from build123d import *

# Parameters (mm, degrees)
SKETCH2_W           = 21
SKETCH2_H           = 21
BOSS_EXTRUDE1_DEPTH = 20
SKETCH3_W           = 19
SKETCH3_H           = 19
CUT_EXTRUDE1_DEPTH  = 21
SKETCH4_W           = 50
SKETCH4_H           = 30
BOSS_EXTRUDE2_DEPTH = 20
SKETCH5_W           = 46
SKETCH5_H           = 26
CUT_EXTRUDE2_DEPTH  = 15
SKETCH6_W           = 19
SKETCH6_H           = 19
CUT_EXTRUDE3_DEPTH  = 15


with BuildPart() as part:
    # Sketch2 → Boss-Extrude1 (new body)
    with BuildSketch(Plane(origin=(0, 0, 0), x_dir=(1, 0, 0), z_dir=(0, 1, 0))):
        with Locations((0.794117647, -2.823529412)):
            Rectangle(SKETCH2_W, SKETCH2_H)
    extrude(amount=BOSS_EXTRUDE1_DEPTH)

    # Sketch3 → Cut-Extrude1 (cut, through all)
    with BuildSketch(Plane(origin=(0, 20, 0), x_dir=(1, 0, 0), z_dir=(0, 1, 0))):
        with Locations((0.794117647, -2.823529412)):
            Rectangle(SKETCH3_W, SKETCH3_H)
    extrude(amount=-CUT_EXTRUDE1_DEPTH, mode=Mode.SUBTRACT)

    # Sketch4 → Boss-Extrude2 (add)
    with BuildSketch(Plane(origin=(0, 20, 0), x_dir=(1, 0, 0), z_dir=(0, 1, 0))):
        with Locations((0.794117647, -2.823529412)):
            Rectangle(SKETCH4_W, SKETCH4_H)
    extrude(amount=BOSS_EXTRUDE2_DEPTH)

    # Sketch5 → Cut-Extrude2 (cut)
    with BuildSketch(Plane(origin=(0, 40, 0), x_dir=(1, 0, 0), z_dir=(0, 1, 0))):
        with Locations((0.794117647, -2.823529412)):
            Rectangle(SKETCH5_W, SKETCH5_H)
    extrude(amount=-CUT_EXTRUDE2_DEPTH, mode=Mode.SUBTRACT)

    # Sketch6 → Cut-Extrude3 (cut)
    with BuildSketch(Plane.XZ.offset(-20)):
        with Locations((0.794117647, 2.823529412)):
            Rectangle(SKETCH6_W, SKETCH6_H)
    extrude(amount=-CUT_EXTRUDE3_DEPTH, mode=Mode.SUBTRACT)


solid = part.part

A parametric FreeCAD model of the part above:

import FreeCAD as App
import Part
import Sketcher
Q = App.Units.Quantity


def add_polygon(sketch, points):
    """Adds a closed chain of lines whose ends are joined by coincident constraints."""
    first, n = sketch.GeometryCount, len(points)
    for a, b in zip(points, points[1:] + points[:1]):
        sketch.addGeometry(Part.LineSegment(App.Vector(*a, 0), App.Vector(*b, 0)), False)
    for i in range(n):
        sketch.addConstraint(Sketcher.Constraint("Coincident", first + i, 2, first + (i + 1) % n, 1))

doc = App.newDocument("Part")
body = doc.addObject("PartDesign::Body", "Body")

sketch1 = body.newObject("Sketcher::SketchObject", "Sketch")
sketch1.AttachmentSupport = (doc.getObject("XZ_Plane"), [""])
sketch1.MapMode = "FlatFace"
add_polygon(sketch1, [(-10, -8), (-10, 13), (11, 13), (11, -8)])
sketch1.addConstraint([
    Sketcher.Constraint("Vertical", 0),
    Sketcher.Constraint("Horizontal", 1),
    Sketcher.Constraint("Vertical", 2),
    Sketcher.Constraint("Horizontal", 3),
    Sketcher.Constraint("Equal", 3, 0),
    Sketcher.Constraint("DistanceX", 1, 1, 1, 2, Q("21 mm")),
    Sketcher.Constraint("DistanceY", -1, 1, 0, 2, Q("13.323529 mm")),
    Sketcher.Constraint("DistanceX", 0, 2, -1, 1, Q("9.705882 mm")),
])
pad1 = body.newObject("PartDesign::Pad", "Pad")
pad1.Profile = sketch1
pad1.Length = 20
pad1.Reversed = True

sketch2 = body.newObject("Sketcher::SketchObject", "Sketch001")
sketch2.AttachmentSupport = (doc.getObject("XZ_Plane"), [""])
sketch2.MapMode = "FlatFace"
sketch2.AttachmentOffset = App.Placement(App.Vector(0, 0, -20), App.Rotation())
add_polygon(sketch2, [(-9, -7), (-9, 12), (10, 12), (10, -7)])
sketch2.addConstraint([
    Sketcher.Constraint("Vertical", 0),
    Sketcher.Constraint("Horizontal", 1),
    Sketcher.Constraint("Vertical", 2),
    Sketcher.Constraint("Horizontal", 3),
    Sketcher.Constraint("Equal", 3, 0),
    Sketcher.Constraint("DistanceX", 1, 1, 1, 2, Q("19 mm")),
    Sketcher.Constraint("DistanceY", -1, 1, 0, 2, Q("12.323529 mm")),
    Sketcher.Constraint("DistanceX", 0, 2, -1, 1, Q("8.705882 mm")),
])
pocket1 = body.newObject("PartDesign::Pocket", "Pocket")
pocket1.Profile = sketch2
pocket1.Type = "ThroughAll"
pocket1.Reversed = True

sketch3 = body.newObject("Sketcher::SketchObject", "Sketch002")
sketch3.AttachmentSupport = (doc.getObject("XZ_Plane"), [""])
sketch3.MapMode = "FlatFace"
sketch3.AttachmentOffset = App.Placement(App.Vector(0, 0, -20), App.Rotation())
add_polygon(sketch3, [(-24, -12), (-24, 18), (26, 18), (26, -12)])
sketch3.addConstraint([
    Sketcher.Constraint("Vertical", 0),
    Sketcher.Constraint("Horizontal", 1),
    Sketcher.Constraint("Vertical", 2),
    Sketcher.Constraint("Horizontal", 3),
    Sketcher.Constraint("DistanceX", 1, 1, 1, 2, Q("50 mm")),
    Sketcher.Constraint("DistanceY", 0, 1, 0, 2, Q("30 mm")),
    Sketcher.Constraint("DistanceY", -1, 1, 0, 2, Q("17.823529 mm")),
    Sketcher.Constraint("DistanceX", 0, 2, -1, 1, Q("24.205882 mm")),
])
pad2 = body.newObject("PartDesign::Pad", "Pad001")
pad2.Profile = sketch3
pad2.Length = 20
pad2.Reversed = True

sketch4 = body.newObject("Sketcher::SketchObject", "Sketch003")
sketch4.AttachmentSupport = (doc.getObject("XZ_Plane"), [""])
sketch4.MapMode = "FlatFace"
sketch4.AttachmentOffset = App.Placement(App.Vector(0, 0, -40), App.Rotation())
add_polygon(sketch4, [(-22, -10), (-22, 16), (24, 16), (24, -10)])
sketch4.addConstraint([
    Sketcher.Constraint("Vertical", 0),
    Sketcher.Constraint("Horizontal", 1),
    Sketcher.Constraint("Vertical", 2),
    Sketcher.Constraint("Horizontal", 3),
    Sketcher.Constraint("DistanceX", 1, 1, 1, 2, Q("46 mm")),
    Sketcher.Constraint("DistanceY", 0, 1, 0, 2, Q("26 mm")),
    Sketcher.Constraint("DistanceY", -1, 1, 0, 2, Q("15.823529 mm")),
    Sketcher.Constraint("DistanceX", 0, 2, -1, 1, Q("22.205882 mm")),
])
pocket2 = body.newObject("PartDesign::Pocket", "Pocket001")
pocket2.Profile = sketch4
pocket2.Length = 15
pocket2.Reversed = True

sketch5 = body.newObject("Sketcher::SketchObject", "Sketch004")
sketch5.AttachmentSupport = (doc.getObject("XZ_Plane"), [""])
sketch5.MapMode = "FlatFace"
sketch5.AttachmentOffset = App.Placement(App.Vector(0, 0, -20), App.Rotation())
add_polygon(sketch5, [(-9, 12), (-9, -7), (10, -7), (10, 12)])
sketch5.addConstraint([
    Sketcher.Constraint("Vertical", 0),
    Sketcher.Constraint("Horizontal", 1),
    Sketcher.Constraint("Vertical", 2),
    Sketcher.Constraint("Horizontal", 3),
    Sketcher.Constraint("Equal", 3, 0),
    Sketcher.Constraint("DistanceX", 1, 1, 1, 2, Q("19 mm")),
    Sketcher.Constraint("DistanceY", 0, 2, -1, 1, Q("6.676471 mm")),
    Sketcher.Constraint("DistanceX", 0, 2, -1, 1, Q("8.705882 mm")),
])
pocket3 = body.newObject("PartDesign::Pocket", "Pocket002")
pocket3.Profile = sketch5
pocket3.Length = 15

doc.recompute()
